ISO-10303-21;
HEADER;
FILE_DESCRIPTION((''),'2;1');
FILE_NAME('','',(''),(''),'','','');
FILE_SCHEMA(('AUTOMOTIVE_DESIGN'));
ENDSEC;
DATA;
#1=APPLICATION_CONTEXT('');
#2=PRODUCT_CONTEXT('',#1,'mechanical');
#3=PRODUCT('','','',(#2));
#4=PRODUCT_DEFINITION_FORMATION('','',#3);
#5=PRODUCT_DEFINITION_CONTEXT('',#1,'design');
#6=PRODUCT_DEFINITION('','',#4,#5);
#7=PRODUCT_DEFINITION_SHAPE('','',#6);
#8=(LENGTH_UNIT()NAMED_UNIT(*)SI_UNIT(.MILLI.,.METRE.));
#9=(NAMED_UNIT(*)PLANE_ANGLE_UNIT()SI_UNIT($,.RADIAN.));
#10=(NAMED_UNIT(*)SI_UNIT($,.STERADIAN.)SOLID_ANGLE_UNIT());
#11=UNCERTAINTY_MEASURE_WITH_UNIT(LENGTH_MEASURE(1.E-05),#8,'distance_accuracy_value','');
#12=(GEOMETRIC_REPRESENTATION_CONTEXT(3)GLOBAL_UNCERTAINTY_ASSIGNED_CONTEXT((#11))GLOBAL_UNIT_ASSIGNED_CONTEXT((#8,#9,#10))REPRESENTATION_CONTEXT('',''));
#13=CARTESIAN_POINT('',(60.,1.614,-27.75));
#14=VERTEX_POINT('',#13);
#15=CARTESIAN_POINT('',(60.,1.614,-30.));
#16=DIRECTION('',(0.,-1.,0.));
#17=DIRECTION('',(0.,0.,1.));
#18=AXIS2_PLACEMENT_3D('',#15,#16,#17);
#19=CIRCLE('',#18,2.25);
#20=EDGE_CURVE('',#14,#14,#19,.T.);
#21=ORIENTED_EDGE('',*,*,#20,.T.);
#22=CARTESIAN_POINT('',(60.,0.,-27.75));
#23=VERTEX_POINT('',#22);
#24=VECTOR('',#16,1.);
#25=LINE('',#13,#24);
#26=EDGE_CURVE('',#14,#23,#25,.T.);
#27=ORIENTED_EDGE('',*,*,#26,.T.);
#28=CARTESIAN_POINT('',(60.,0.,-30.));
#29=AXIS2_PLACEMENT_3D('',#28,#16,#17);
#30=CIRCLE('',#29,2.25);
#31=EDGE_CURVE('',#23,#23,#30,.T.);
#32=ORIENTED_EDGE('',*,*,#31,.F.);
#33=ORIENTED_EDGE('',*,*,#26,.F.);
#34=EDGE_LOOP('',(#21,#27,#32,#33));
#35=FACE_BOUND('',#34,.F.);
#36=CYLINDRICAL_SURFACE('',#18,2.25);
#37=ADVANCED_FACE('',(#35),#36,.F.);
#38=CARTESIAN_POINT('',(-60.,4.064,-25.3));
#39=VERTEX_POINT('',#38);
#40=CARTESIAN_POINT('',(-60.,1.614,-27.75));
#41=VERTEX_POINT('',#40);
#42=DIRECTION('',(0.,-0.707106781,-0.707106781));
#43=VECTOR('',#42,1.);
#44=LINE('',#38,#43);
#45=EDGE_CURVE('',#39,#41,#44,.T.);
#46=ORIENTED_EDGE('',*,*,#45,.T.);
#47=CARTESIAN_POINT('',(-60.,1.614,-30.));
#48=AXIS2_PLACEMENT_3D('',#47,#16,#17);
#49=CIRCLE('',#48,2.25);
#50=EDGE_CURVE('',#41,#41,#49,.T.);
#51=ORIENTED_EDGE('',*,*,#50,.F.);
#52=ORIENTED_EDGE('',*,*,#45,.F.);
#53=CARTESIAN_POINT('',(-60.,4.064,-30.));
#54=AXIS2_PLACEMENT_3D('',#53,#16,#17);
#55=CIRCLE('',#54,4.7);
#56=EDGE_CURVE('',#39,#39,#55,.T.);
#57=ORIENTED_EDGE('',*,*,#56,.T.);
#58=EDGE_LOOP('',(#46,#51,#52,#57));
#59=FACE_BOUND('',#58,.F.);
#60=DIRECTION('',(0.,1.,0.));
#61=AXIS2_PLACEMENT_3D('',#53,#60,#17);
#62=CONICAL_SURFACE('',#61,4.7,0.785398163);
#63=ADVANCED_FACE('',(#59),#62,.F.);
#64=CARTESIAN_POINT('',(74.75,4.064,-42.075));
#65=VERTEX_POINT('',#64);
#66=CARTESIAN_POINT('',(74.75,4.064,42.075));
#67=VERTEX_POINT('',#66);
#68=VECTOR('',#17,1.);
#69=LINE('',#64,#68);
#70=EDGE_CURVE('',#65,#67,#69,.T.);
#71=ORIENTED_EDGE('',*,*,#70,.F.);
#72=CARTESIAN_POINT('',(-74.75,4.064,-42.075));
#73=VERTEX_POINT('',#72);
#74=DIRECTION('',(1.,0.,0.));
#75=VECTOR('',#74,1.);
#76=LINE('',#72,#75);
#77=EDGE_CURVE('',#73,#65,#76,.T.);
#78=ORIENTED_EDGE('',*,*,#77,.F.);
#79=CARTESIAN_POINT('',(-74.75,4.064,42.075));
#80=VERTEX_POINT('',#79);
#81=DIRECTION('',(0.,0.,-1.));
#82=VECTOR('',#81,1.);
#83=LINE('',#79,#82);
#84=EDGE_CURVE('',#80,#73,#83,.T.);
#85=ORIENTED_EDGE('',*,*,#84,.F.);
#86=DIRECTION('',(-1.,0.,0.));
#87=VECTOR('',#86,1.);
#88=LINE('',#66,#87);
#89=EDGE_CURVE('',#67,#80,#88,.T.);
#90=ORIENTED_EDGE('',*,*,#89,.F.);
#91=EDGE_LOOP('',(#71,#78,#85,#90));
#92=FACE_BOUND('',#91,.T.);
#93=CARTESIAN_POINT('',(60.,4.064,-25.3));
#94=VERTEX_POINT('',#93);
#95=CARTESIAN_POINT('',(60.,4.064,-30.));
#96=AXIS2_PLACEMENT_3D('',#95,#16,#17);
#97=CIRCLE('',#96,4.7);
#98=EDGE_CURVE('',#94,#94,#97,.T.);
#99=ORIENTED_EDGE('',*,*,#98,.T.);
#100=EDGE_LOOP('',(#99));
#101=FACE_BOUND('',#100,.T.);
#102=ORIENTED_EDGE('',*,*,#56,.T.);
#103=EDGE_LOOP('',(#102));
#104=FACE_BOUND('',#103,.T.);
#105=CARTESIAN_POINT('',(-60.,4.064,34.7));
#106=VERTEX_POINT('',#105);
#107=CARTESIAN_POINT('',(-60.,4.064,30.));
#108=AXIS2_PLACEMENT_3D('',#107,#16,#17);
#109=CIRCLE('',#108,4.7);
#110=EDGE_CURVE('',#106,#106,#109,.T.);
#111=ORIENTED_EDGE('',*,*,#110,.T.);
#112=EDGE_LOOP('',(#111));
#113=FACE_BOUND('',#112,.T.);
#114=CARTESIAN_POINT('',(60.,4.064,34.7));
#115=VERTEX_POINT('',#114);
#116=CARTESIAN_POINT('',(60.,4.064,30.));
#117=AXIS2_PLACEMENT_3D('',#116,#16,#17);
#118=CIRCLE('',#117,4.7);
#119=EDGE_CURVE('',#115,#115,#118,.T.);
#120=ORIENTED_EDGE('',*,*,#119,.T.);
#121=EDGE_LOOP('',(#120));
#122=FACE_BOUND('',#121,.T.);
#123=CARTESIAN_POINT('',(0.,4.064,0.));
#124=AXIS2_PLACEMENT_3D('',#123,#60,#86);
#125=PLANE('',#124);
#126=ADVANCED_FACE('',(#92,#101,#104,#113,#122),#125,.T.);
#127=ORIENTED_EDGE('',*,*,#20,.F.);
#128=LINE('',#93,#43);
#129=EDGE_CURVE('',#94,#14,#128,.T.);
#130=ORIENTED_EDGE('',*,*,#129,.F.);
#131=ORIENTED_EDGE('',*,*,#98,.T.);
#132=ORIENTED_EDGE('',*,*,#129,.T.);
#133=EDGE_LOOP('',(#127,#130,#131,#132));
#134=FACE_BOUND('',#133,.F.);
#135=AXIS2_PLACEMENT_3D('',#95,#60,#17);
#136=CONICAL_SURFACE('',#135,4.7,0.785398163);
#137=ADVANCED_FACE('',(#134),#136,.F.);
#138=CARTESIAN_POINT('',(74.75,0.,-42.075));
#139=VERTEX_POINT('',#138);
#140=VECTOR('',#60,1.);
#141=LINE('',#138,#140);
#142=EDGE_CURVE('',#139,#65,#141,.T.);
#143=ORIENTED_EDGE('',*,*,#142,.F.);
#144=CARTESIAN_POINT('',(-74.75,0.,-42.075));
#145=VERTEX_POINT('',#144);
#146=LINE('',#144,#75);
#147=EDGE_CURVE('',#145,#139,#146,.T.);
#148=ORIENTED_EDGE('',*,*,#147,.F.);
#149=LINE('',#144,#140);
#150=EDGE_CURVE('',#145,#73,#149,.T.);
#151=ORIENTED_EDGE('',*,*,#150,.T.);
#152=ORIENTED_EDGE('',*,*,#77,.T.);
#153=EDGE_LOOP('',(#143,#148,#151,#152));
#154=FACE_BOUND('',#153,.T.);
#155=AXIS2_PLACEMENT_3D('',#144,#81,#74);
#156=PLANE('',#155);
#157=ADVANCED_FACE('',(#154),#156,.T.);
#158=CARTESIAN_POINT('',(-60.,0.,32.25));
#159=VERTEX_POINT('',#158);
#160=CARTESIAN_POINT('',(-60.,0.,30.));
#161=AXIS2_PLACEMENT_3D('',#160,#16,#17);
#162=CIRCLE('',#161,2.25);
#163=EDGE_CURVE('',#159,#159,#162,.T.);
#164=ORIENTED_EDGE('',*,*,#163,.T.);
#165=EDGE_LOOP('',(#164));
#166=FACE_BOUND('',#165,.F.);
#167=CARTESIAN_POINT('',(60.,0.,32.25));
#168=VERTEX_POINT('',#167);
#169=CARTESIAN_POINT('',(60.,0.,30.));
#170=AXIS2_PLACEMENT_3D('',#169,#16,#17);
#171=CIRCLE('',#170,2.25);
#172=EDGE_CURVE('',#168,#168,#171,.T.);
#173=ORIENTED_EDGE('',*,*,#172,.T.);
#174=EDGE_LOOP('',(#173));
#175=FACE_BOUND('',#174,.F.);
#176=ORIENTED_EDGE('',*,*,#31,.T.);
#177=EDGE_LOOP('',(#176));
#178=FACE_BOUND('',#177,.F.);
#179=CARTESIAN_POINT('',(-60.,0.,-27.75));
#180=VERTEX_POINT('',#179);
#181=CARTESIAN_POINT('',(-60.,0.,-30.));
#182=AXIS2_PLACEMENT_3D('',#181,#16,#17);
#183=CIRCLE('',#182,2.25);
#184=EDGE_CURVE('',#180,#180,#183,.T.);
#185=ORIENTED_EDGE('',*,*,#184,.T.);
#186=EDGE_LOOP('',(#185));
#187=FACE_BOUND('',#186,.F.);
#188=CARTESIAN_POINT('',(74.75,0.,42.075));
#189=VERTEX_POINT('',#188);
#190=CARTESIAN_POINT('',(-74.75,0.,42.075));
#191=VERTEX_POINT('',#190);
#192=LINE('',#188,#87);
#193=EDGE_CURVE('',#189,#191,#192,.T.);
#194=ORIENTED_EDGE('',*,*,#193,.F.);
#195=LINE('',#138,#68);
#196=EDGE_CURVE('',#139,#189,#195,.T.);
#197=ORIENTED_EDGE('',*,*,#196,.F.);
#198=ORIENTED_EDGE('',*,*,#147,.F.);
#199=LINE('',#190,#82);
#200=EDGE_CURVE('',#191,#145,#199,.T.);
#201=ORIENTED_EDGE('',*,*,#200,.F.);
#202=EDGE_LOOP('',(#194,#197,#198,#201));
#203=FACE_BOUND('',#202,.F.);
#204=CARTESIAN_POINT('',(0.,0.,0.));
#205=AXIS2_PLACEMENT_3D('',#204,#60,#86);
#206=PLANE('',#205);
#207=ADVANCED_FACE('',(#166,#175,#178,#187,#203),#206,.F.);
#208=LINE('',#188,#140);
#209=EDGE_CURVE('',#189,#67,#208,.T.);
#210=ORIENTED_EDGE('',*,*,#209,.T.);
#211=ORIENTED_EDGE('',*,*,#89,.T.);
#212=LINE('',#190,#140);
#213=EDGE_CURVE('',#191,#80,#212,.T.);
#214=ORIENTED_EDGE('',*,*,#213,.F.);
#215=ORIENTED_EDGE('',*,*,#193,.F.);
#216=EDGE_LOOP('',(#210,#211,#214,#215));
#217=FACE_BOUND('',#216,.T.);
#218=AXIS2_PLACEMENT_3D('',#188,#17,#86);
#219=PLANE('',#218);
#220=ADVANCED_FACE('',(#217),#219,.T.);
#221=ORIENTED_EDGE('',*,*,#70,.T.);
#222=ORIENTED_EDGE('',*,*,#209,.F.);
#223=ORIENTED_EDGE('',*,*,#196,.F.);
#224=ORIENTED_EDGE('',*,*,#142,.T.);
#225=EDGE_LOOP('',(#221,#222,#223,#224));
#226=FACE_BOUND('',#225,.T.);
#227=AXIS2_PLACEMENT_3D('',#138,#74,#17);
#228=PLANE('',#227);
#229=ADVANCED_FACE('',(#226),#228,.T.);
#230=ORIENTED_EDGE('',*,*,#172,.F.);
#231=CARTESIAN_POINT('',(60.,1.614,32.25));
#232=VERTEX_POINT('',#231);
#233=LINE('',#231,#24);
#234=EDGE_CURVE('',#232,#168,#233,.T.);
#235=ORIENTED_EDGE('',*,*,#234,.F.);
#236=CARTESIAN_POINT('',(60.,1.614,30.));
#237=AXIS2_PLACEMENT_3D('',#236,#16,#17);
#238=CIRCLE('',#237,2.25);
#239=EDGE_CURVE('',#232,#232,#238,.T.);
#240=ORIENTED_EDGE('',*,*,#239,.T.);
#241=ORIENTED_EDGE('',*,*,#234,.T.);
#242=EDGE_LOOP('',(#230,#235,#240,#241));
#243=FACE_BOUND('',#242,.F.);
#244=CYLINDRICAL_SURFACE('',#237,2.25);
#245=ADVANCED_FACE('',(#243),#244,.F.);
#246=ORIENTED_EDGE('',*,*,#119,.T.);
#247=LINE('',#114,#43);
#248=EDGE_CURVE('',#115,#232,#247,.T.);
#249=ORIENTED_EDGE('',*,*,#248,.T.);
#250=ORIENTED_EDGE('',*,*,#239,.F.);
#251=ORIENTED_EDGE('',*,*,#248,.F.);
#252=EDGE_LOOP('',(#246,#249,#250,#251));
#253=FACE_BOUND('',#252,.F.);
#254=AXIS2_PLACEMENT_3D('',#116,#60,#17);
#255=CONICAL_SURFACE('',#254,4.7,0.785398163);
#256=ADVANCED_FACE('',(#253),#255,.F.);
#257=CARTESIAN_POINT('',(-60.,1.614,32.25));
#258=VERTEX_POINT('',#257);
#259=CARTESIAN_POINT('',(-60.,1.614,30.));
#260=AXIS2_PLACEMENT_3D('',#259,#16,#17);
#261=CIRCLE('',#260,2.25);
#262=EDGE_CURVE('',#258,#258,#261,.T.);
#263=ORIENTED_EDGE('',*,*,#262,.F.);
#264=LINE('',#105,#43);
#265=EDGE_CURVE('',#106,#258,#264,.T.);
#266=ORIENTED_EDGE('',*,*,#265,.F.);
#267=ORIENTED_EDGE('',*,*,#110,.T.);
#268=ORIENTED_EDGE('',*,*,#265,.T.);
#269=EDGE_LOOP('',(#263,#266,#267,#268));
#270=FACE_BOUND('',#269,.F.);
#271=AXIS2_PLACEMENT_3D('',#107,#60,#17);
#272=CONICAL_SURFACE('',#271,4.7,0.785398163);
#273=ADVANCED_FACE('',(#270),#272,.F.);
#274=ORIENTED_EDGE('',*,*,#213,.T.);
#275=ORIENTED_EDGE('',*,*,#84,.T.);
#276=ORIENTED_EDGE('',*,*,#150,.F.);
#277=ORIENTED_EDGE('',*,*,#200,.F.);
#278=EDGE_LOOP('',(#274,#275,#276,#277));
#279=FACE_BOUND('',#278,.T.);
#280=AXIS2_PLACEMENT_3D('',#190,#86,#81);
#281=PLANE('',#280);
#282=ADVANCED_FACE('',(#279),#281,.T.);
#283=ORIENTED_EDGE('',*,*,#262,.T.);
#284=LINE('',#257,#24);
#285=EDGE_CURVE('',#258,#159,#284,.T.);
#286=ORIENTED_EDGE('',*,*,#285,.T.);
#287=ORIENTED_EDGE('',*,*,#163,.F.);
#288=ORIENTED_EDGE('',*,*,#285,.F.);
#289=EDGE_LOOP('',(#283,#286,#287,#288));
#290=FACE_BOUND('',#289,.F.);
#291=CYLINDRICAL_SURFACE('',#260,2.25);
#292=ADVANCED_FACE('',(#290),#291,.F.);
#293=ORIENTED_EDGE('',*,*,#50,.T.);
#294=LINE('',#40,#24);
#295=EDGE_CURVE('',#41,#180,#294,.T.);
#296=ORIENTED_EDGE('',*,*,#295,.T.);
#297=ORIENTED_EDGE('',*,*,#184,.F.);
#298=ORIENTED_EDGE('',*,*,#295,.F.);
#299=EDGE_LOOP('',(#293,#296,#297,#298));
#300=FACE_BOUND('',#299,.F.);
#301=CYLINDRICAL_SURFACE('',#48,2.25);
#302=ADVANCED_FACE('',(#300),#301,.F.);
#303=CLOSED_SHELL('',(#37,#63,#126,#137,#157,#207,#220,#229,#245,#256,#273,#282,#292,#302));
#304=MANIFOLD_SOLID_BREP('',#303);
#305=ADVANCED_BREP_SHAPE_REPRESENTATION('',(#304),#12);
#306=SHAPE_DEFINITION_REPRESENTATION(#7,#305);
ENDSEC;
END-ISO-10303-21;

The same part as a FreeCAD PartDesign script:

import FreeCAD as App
import Part
import Sketcher

V = App.Vector
Q = App.Units.Quantity


def add_polygon(sketch, points):
    """Adds a closed chain of lines whose ends are joined by coincident constraints."""
    first, n = sketch.GeometryCount, len(points)
    for a, b in zip(points, points[1:] + points[:1]):
        sketch.addGeometry(Part.LineSegment(App.Vector(*a, 0), App.Vector(*b, 0)), False)
    for i in range(n):
        sketch.addConstraint(Sketcher.Constraint("Coincident", first + i, 2, first + (i + 1) % n, 1))

doc = App.newDocument("Part")
body = doc.addObject("PartDesign::Body", "Body")

# Sketch on XZ plane
sketch1 = doc.addObject("Sketcher::SketchObject", "Sketch")
body.addObject(sketch1)
sketch1.AttachmentSupport = (doc.XZ_Plane, [""])
sketch1.MapMode = "FlatFace"
add_polygon(sketch1, [(-75, 42), (75, 42), (75, -42), (-75, -42)])  # lines 0-3
sketch1.addConstraint(Sketcher.Constraint("Horizontal", 0))
sketch1.addConstraint(Sketcher.Constraint("Vertical", 1))
sketch1.addConstraint(Sketcher.Constraint("Horizontal", 2))
sketch1.addConstraint(Sketcher.Constraint("Vertical", 3))
sketch1.addConstraint(Sketcher.Constraint("Symmetric", 0, 2, 2, 2, -1, 1))
sketch1.addConstraint(Sketcher.Constraint("DistanceX", 0, 1, 0, 2, Q("149.5 mm")))
sketch1.addConstraint(Sketcher.Constraint("DistanceY", 1, 2, 1, 1, Q("84.15 mm")))
pad1 = doc.addObject("PartDesign::Pad", "Pad")
body.addObject(pad1)
pad1.Profile = sketch1
pad1.Length = 4.064
pad1.Reversed = True

# Sketch on XZ plane
sketch2 = doc.addObject("Sketcher::SketchObject", "Sketch001")
body.addObject(sketch2)
sketch2.AttachmentSupport = (doc.XZ_Plane, [""])
sketch2.MapMode = "FlatFace"
sketch2.AttachmentOffset = App.Placement(V(0, 0, -4.064), App.Rotation())
sketch2.addGeometry(Part.Circle(V(-60, -30, 0), V(0, 0, 1), 2.2), False)
sketch2.addGeometry(Part.Circle(V(60, -30, 0), V(0, 0, 1), 2.2), False)
sketch2.addGeometry(Part.Circle(V(-60, 30, 0), V(0, 0, 1), 2.2), False)
sketch2.addGeometry(Part.Circle(V(60, 30, 0), V(0, 0, 1), 2.2), False)
sketch2.addConstraint(Sketcher.Constraint("Equal", 0, 1))
sketch2.addConstraint(Sketcher.Constraint("Equal", 1, 2))
sketch2.addConstraint(Sketcher.Constraint("Equal", 2, 3))
sketch2.addConstraint(Sketcher.Constraint("Symmetric", 1, 3, 2, 3, -1, 1))
sketch2.addConstraint(Sketcher.Constraint("Symmetric", 0, 3, 3, 3, -1, 1))
sketch2.addConstraint(Sketcher.Constraint("Symmetric", 0, 3, 1, 3, -2))
sketch2.addConstraint(Sketcher.Constraint("Diameter", 0, Q("4.5 mm")))
sketch2.addConstraint(Sketcher.Constraint("DistanceX", 0, 3, -1, 1, Q("60 mm")))
sketch2.addConstraint(Sketcher.Constraint("DistanceY", 0, 3, -1, 1, Q("30 mm")))
doc.recompute()
hole = doc.addObject("PartDesign::Hole", "Hole")
body.addObject(hole)
hole.Profile = sketch2
hole.ThreadType = "None"
hole.Diameter = 4.5
hole.DepthType = "ThroughAll"
hole.HoleCutType = "Countersink"
hole.HoleCutDiameter = 9.4
hole.HoleCutCountersinkAngle = 90
hole.Reversed = True

doc.recompute()
